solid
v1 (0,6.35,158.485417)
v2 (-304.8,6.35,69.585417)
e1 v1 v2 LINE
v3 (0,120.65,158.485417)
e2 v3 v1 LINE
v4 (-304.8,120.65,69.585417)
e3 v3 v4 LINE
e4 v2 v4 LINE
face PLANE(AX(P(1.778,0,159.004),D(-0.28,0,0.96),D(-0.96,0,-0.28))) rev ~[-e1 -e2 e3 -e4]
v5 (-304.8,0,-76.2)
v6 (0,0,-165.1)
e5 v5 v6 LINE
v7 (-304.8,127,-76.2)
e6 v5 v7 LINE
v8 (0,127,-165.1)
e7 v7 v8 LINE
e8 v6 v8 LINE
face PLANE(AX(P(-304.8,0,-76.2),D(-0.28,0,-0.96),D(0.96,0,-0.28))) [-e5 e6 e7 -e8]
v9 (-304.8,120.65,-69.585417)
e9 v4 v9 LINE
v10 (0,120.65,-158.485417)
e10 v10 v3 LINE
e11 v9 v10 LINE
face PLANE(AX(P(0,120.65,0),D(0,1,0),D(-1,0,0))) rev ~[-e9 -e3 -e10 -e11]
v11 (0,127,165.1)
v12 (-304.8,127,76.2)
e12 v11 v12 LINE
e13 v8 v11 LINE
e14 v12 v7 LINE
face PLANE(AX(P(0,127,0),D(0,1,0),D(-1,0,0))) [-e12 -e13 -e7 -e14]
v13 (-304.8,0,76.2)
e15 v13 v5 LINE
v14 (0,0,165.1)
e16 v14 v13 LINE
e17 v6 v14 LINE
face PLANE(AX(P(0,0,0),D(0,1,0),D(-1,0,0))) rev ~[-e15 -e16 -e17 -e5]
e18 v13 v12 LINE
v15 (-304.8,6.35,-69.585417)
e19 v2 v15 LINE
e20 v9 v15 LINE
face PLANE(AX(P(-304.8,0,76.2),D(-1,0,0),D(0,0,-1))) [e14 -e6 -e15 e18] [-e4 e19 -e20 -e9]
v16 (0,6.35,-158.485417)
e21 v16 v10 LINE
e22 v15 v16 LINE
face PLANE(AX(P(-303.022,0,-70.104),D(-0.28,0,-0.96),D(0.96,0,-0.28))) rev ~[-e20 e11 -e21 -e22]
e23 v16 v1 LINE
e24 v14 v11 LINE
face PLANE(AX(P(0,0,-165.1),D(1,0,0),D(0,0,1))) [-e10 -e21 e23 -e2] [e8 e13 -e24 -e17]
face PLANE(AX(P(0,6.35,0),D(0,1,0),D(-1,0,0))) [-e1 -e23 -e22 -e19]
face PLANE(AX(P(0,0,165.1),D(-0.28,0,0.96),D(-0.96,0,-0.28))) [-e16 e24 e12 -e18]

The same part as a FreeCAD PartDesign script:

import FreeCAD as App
import Part
import Sketcher

V = App.Vector
Q = App.Units.Quantity


def faces_at(feature, points):
    """Names of the faces that lie closest to the given points."""
    faces = feature.Shape.Faces
    near = lambda p: min(range(len(faces)), key=lambda i: faces[i].distToShape(Part.Vertex(*p))[0])
    return sorted({f"Face{near(p) + 1}" for p in points})

doc = App.newDocument("Part")
body = doc.addObject("PartDesign::Body", "Body")

sketch1 = body.newObject("Sketcher::SketchObject", "Sketch")
sketch1.AttachmentSupport = (doc.getObject("XZ_Plane"), [""])
sketch1.MapMode = "FlatFace"
sketch1.addGeometry([
    Part.LineSegment(V(-305, 76, 0), V(0, 165, 0)),
    Part.LineSegment(V(0, 165, 0), V(0, -165, 0)),
    Part.LineSegment(V(0, -165, 0), V(-305, -76, 0)),
    Part.LineSegment(V(-305, -76, 0), V(-305, 76, 0)),
], False)
sketch1.addConstraint([
    Sketcher.Constraint("Coincident", 0, 2, 1, 1),
    Sketcher.Constraint("Coincident", 1, 2, 2, 1),
    Sketcher.Constraint("Coincident", 2, 2, 3, 1),
    Sketcher.Constraint("Coincident", 3, 2, 0, 1),
    Sketcher.Constraint("Vertical", 1),
    Sketcher.Constraint("Vertical", 3),
    Sketcher.Constraint("Symmetric", 0, 2, 1, 2, -1, 1),
    Sketcher.Constraint("Equal", 0, 2),
    Sketcher.Constraint("DistanceY", 1, 2, 1, 1, Q("13 in")),
    Sketcher.Constraint("DistanceY", 3, 1, 3, 2, Q("6 in")),
    Sketcher.Constraint("DistanceX", 2, 2, -1, 1, Q("12 in")),
])
pad1 = body.newObject("PartDesign::Pad", "Pad")
pad1.Profile = sketch1
pad1.Length = Q("5 in")
pad1.Reversed = True
doc.recompute()

thickness = body.newObject("PartDesign::Thickness", "Thickness")
thickness.Base = (pad1, faces_at(pad1, [(0, 42.333, 55.033), (-304.8, 42.333, -25.4)]))
thickness.Value = Q("0.25 in")
thickness.Reversed = True
thickness.Join = "Intersection"

doc.recompute()
